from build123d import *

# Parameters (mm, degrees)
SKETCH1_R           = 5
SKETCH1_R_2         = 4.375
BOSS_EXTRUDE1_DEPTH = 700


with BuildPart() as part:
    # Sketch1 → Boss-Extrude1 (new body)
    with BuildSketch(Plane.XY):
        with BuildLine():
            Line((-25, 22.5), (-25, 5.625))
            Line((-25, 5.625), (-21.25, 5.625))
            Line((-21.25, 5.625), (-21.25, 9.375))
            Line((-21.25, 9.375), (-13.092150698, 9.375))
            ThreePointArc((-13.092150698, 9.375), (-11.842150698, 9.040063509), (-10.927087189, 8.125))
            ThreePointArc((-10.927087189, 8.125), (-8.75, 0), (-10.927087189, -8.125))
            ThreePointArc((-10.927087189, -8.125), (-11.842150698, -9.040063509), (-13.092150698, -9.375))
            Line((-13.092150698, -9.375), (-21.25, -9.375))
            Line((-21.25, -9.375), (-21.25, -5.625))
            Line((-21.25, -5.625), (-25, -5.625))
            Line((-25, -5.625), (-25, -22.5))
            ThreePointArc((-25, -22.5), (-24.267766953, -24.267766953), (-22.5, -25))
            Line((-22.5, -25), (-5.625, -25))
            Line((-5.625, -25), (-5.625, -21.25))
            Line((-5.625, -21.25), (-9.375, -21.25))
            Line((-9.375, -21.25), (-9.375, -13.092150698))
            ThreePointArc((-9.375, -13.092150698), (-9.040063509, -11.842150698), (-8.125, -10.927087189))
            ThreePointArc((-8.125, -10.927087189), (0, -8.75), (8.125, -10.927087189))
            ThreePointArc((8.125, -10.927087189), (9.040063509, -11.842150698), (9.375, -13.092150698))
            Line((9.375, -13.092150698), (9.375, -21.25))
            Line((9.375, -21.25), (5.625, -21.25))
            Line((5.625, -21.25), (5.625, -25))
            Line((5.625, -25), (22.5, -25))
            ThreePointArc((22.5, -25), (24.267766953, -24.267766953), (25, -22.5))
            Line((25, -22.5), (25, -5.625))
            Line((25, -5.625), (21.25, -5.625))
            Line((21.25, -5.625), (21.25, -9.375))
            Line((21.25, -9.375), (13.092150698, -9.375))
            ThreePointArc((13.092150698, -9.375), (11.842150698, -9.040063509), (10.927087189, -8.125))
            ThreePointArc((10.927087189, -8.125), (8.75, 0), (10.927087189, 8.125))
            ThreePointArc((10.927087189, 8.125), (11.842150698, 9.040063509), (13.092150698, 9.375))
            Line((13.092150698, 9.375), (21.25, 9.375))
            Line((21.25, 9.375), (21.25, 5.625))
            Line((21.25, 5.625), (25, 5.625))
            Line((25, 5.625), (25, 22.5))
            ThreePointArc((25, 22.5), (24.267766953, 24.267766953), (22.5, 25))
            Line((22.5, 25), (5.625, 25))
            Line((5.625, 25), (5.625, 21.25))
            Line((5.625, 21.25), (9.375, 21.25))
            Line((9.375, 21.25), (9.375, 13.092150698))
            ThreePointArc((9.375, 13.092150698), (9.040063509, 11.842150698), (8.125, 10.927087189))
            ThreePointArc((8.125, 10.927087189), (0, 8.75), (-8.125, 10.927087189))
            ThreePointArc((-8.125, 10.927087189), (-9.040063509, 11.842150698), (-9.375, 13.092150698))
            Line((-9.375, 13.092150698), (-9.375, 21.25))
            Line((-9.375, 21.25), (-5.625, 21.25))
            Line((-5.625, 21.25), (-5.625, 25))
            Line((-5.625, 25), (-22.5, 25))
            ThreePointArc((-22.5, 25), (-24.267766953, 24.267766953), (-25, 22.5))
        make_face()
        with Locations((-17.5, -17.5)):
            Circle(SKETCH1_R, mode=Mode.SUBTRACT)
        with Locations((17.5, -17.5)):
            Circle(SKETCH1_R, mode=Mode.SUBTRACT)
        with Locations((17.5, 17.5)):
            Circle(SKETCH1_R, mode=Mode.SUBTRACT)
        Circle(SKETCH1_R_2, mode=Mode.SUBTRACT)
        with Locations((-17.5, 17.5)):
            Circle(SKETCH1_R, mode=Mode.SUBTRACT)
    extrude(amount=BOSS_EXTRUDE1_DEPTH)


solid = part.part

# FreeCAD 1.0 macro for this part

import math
import FreeCAD as App
import Part
import Sketcher

V = App.Vector
Q = App.Units.Quantity

doc = App.newDocument("Part")
params = doc.addObject("Spreadsheet::Sheet", "Params")
for row, (alias, value) in enumerate([
    ("sketch1_diameter", "10 mm"),
    ("sketch1_radius", "2.5 mm"),
    ("sketch1_diameter2", "8.75 mm"),
    ("sketch1_radius2", "16.25 mm"),
    ("sketch1_width", "3.75 mm"),
    ("pad1_length", "700 mm"),
], start=1):
    params.set(f"A{row}", alias)
    params.set(f"B{row}", "=" + value)
    params.setAlias(f"B{row}", alias)

body = doc.addObject("PartDesign::Body", "Body")

sketch1 = body.newObject("Sketcher::SketchObject", "Sketch")
sketch1.AttachmentSupport = (doc.getObject("XY_Plane"), [""])
sketch1.MapMode = "FlatFace"
sketch1.addGeometry([
    Part.LineSegment(V(-25, 22.5, 0), V(-25, 5.6, 0)),
    Part.LineSegment(V(-25, 5.6, 0), V(-21.2, 5.6, 0)),
    Part.LineSegment(V(-21.2, 5.6, 0), V(-21.2, 9.4, 0)),
    Part.LineSegment(V(-21.2, 9.4, 0), V(-13.1, 9.4, 0)),
    Part.ArcOfCircle(Part.Circle(V(-13.1, 6.9, 0), V(0, 0, 1), 2.5), math.radians(30), math.radians(90)),
    Part.ArcOfCircle(Part.Circle(V(-25, 0, 0), V(0, 0, 1), 16.2), math.radians(-30), math.radians(30)),
    Part.ArcOfCircle(Part.Circle(V(-13.1, -6.9, 0), V(0, 0, 1), 2.5), math.radians(-90), math.radians(-30)),
    Part.LineSegment(V(-13.1, -9.4, 0), V(-21.2, -9.4, 0)),
    Part.LineSegment(V(-21.2, -9.4, 0), V(-21.2, -5.6, 0)),
    Part.LineSegment(V(-21.2, -5.6, 0), V(-25, -5.6, 0)),
    Part.LineSegment(V(-25, -5.6, 0), V(-25, -22.5, 0)),
    Part.ArcOfCircle(Part.Circle(V(-22.5, -22.5, 0), V(0, 0, 1), 2.5), math.radians(180), math.radians(270)),
    Part.LineSegment(V(-22.5, -25, 0), V(-5.6, -25, 0)),
    Part.LineSegment(V(-5.6, -25, 0), V(-5.6, -21.2, 0)),
    Part.LineSegment(V(-5.6, -21.2, 0), V(-9.4, -21.2, 0)),
    Part.LineSegment(V(-9.4, -21.2, 0), V(-9.4, -13.1, 0)),
    Part.ArcOfCircle(Part.Circle(V(-6.9, -13.1, 0), V(0, 0, 1), 2.5), math.radians(120), math.radians(180)),
    Part.ArcOfCircle(Part.Circle(V(0, -25, 0), V(0, 0, 1), 16.2), math.radians(60), math.radians(120)),
    Part.ArcOfCircle(Part.Circle(V(6.9, -13.1, 0), V(0, 0, 1), 2.5), math.radians(0), math.radians(60)),
    Part.LineSegment(V(9.4, -13.1, 0), V(9.4, -21.2, 0)),
    Part.LineSegment(V(9.4, -21.2, 0), V(5.6, -21.2, 0)),
    Part.LineSegment(V(5.6, -21.2, 0), V(5.6, -25, 0)),
    Part.LineSegment(V(5.6, -25, 0), V(22.5, -25, 0)),
    Part.ArcOfCircle(Part.Circle(V(22.5, -22.5, 0), V(0, 0, 1), 2.5), math.radians(-90), math.radians(0)),
    Part.LineSegment(V(25, -22.5, 0), V(25, -5.6, 0)),
    Part.LineSegment(V(25, -5.6, 0), V(21.2, -5.6, 0)),
    Part.LineSegment(V(21.2, -5.6, 0), V(21.2, -9.4, 0)),
    Part.LineSegment(V(21.2, -9.4, 0), V(13.1, -9.4, 0)),
    Part.ArcOfCircle(Part.Circle(V(13.1, -6.9, 0), V(0, 0, 1), 2.5), math.radians(-150), math.radians(-90)),
    Part.ArcOfCircle(Part.Circle(V(25, 0, 0), V(0, 0, 1), 16.2), math.radians(150), math.radians(210)),
    Part.ArcOfCircle(Part.Circle(V(13.1, 6.9, 0), V(0, 0, 1), 2.5), math.radians(90), math.radians(150)),
    Part.LineSegment(V(13.1, 9.4, 0), V(21.2, 9.4, 0)),
    Part.LineSegment(V(21.2, 9.4, 0), V(21.2, 5.6, 0)),
    Part.LineSegment(V(21.2, 5.6, 0), V(25, 5.6, 0)),
    Part.LineSegment(V(25, 5.6, 0), V(25, 22.5, 0)),
    Part.ArcOfCircle(Part.Circle(V(22.5, 22.5, 0), V(0, 0, 1), 2.5), math.radians(0), math.radians(90)),
    Part.LineSegment(V(22.5, 25, 0), V(5.6, 25, 0)),
    Part.LineSegment(V(5.6, 25, 0), V(5.6, 21.2, 0)),
    Part.LineSegment(V(5.6, 21.2, 0), V(9.4, 21.2, 0)),
    Part.LineSegment(V(9.4, 21.2, 0), V(9.4, 13.1, 0)),
    Part.ArcOfCircle(Part.Circle(V(6.9, 13.1, 0), V(0, 0, 1), 2.5), math.radians(-60), math.radians(0)),
    Part.ArcOfCircle(Part.Circle(V(0, 25, 0), V(0, 0, 1), 16.2), math.radians(-120), math.radians(-60)),
    Part.ArcOfCircle(Part.Circle(V(-6.9, 13.1, 0), V(0, 0, 1), 2.5), math.radians(-180), math.radians(-120)),
    Part.LineSegment(V(-9.4, 13.1, 0), V(-9.4, 21.2, 0)),
    Part.LineSegment(V(-9.4, 21.2, 0), V(-5.6, 21.2, 0)),
    Part.LineSegment(V(-5.6, 21.2, 0), V(-5.6, 25, 0)),
    Part.LineSegment(V(-5.6, 25, 0), V(-22.5, 25, 0)),
    Part.ArcOfCircle(Part.Circle(V(-22.5, 22.5, 0), V(0, 0, 1), 2.5), math.radians(90), math.radians(180)),
    Part.Circle(V(-17.5, -17.5, 0), V(0, 0, 1), 5),
    Part.Circle(V(17.5, -17.5, 0), V(0, 0, 1), 5),
    Part.Circle(V(-17.5, 17.5, 0), V(0, 0, 1), 5),
    Part.Circle(V(0, 0, 0), V(0, 0, 1), 4.4),
    Part.Circle(V(17.5, 17.5, 0), V(0, 0, 1), 5),
], False)
sketch1.addConstraint([
    Sketcher.Constraint("Coincident", 0, 2, 1, 1),
    Sketcher.Constraint("Coincident", 1, 2, 2, 1),
    Sketcher.Constraint("Coincident", 2, 2, 3, 1),
    Sketcher.Constraint("Tangent", 3, 2, 4, 2),
    Sketcher.Constraint("Tangent", 4, 1, 5, 2),
    Sketcher.Constraint("Tangent", 5, 1, 6, 2),
    Sketcher.Constraint("Tangent", 6, 1, 7, 1),
    Sketcher.Constraint("Coincident", 7, 2, 8, 1),
    Sketcher.Constraint("Coincident", 8, 2, 9, 1),
    Sketcher.Constraint("Coincident", 9, 2, 10, 1),
    Sketcher.Constraint("Tangent", 10, 2, 11, 1),
    Sketcher.Constraint("Tangent", 11, 2, 12, 1),
    Sketcher.Constraint("Coincident", 12, 2, 13, 1),
    Sketcher.Constraint("Coincident", 13, 2, 14, 1),
    Sketcher.Constraint("Coincident", 14, 2, 15, 1),
    Sketcher.Constraint("Tangent", 15, 2, 16, 2),
    Sketcher.Constraint("Tangent", 16, 1, 17, 2),
    Sketcher.Constraint("Tangent", 17, 1, 18, 2),
    Sketcher.Constraint("Tangent", 18, 1, 19, 1),
    Sketcher.Constraint("Coincident", 19, 2, 20, 1),
    Sketcher.Constraint("Coincident", 20, 2, 21, 1),
    Sketcher.Constraint("Coincident", 21, 2, 22, 1),
    Sketcher.Constraint("Tangent", 22, 2, 23, 1),
    Sketcher.Constraint("Tangent", 23, 2, 24, 1),
    Sketcher.Constraint("Coincident", 24, 2, 25, 1),
    Sketcher.Constraint("Coincident", 25, 2, 26, 1),
    Sketcher.Constraint("Coincident", 26, 2, 27, 1),
    Sketcher.Constraint("Tangent", 27, 2, 28, 2),
    Sketcher.Constraint("Tangent", 28, 1, 29, 2),
    Sketcher.Constraint("Tangent", 29, 1, 30, 2),
    Sketcher.Constraint("Tangent", 30, 1, 31, 1),
    Sketcher.Constraint("Coincident", 31, 2, 32, 1),
    Sketcher.Constraint("Coincident", 32, 2, 33, 1),
    Sketcher.Constraint("Coincident", 33, 2, 34, 1),
    Sketcher.Constraint("Tangent", 34, 2, 35, 1),
    Sketcher.Constraint("Tangent", 35, 2, 36, 1),
    Sketcher.Constraint("Coincident", 36, 2, 37, 1),
    Sketcher.Constraint("Coincident", 37, 2, 38, 1),
    Sketcher.Constraint("Coincident", 38, 2, 39, 1),
    Sketcher.Constraint("Tangent", 39, 2, 40, 2),
    Sketcher.Constraint("Tangent", 40, 1, 41, 2),
    Sketcher.Constraint("Tangent", 41, 1, 42, 2),
    Sketcher.Constraint("Tangent", 42, 1, 43, 1),
    Sketcher.Constraint("Coincident", 43, 2, 44, 1),
    Sketcher.Constraint("Coincident", 44, 2, 45, 1),
    Sketcher.Constraint("Coincident", 45, 2, 46, 1),
    Sketcher.Constraint("Tangent", 46, 2, 47, 1),
    Sketcher.Constraint("Tangent", 47, 2, 0, 1),
    Sketcher.Constraint("Vertical", 0),
    Sketcher.Constraint("Horizontal", 1),
    Sketcher.Constraint("Vertical", 2),
    Sketcher.Constraint("Horizontal", 3),
    Sketcher.Constraint("Horizontal", 7),
    Sketcher.Constraint("Vertical", 8),
    Sketcher.Constraint("Horizontal", 9),
    Sketcher.Constraint("Vertical", 10),
    Sketcher.Constraint("Horizontal", 12),
    Sketcher.Constraint("Vertical", 13),
    Sketcher.Constraint("Horizontal", 14),
    Sketcher.Constraint("Vertical", 15),
    Sketcher.Constraint("Vertical", 19),
    Sketcher.Constraint("Horizontal", 20),
    Sketcher.Constraint("Vertical", 21),
    Sketcher.Constraint("Horizontal", 22),
    Sketcher.Constraint("Vertical", 24),
    Sketcher.Constraint("Horizontal", 25),
    Sketcher.Constraint("Vertical", 26),
    Sketcher.Constraint("Horizontal", 27),
    Sketcher.Constraint("Horizontal", 31),
    Sketcher.Constraint("Vertical", 32),
    Sketcher.Constraint("Horizontal", 33),
    Sketcher.Constraint("Vertical", 34),
    Sketcher.Constraint("Horizontal", 36),
    Sketcher.Constraint("Vertical", 37),
    Sketcher.Constraint("Horizontal", 38),
    Sketcher.Constraint("Vertical", 39),
    Sketcher.Constraint("Vertical", 43),
    Sketcher.Constraint("Horizontal", 44),
    Sketcher.Constraint("Vertical", 45),
    Sketcher.Constraint("Horizontal", 46),
    Sketcher.Constraint("Coincident", 51, 3, -1, 1),
    Sketcher.Constraint("Equal", 4, 6),
    Sketcher.Constraint("Equal", 6, 11),
    Sketcher.Constraint("Equal", 11, 16),
    Sketcher.Constraint("Equal", 5, 17),
    Sketcher.Constraint("Equal", 16, 18),
    Sketcher.Constraint("Equal", 18, 23),
    Sketcher.Constraint("Equal", 23, 28),
    Sketcher.Constraint("Equal", 17, 29),
    Sketcher.Constraint("Equal", 28, 30),
    Sketcher.Constraint("Equal", 30, 35),
    Sketcher.Constraint("Equal", 35, 40),
    Sketcher.Constraint("Equal", 29, 41),
    Sketcher.Constraint("Equal", 40, 42),
    Sketcher.Constraint("Equal", 42, 47),
    Sketcher.Constraint("Equal", 48, 49),
    Sketcher.Constraint("Equal", 49, 50),
    Sketcher.Constraint("Equal", 50, 52),
    Sketcher.Constraint("Symmetric", 4, 3, 28, 3, -1, 1),
    Sketcher.Constraint("Symmetric", 6, 3, 30, 3, -1, 1),
    Sketcher.Constraint("Symmetric", 11, 3, 35, 3, -1, 1),
    Sketcher.Constraint("Symmetric", 16, 3, 40, 3, -1, 1),
    Sketcher.Constraint("Symmetric", 18, 3, 42, 3, -1, 1),
    Sketcher.Constraint("Symmetric", 23, 3, 47, 3, -1, 1),
    Sketcher.Constraint("Symmetric", 49, 3, 50, 3, -1, 1),
    Sketcher.Constraint("Symmetric", 48, 3, 52, 3, -1, 1),
    Sketcher.Constraint("Symmetric", 1, 2, 25, 2, -1, 1),
    Sketcher.Constraint("Symmetric", 8, 2, 32, 2, -1, 1),
    Sketcher.Constraint("Symmetric", 13, 2, 37, 2, -1, 1),
    Sketcher.Constraint("Symmetric", 20, 2, 44, 2, -1, 1),
    Sketcher.Constraint("Symmetric", 16, 3, 18, 3, -2),
    Sketcher.Constraint("Symmetric", 11, 3, 23, 3, -2),
    Sketcher.Constraint("Symmetric", 6, 3, 28, 3, -2),
    Sketcher.Constraint("Symmetric", 48, 3, 49, 3, -2),
    Sketcher.Constraint("Symmetric", 13, 2, 20, 2, -2),
    Sketcher.Constraint("Symmetric", 8, 2, 25, 2, -2),
    Sketcher.Constraint("Horizontal", 17, 3, 11, 2),
    Sketcher.Constraint("Vertical", 5, 3, 0, 2),
    Sketcher.Constraint("Equal", 9, 14),
    Sketcher.Constraint("Equal", 46, 0),
    Sketcher.Constraint("Equal", 44, 2),
    Sketcher.Constraint("Equal", 8, 13),
    Sketcher.Constraint("Equal", 31, 15),
    Sketcher.Constraint("Diameter", 48, Q("10 mm")),
    Sketcher.Constraint("Radius", 4, Q("2.5 mm")),
    Sketcher.Constraint("Diameter", 51, Q("8.75 mm")),
    Sketcher.Constraint("Radius", 5, Q("16.25 mm")),
    Sketcher.Constraint("DistanceX", 5, 3, -1, 1, Q("25 mm")),
    Sketcher.Constraint("DistanceX", 1, 1, 1, 2, Q("3.75 mm")),
    Sketcher.Constraint("DistanceX", 48, 3, -1, 1, Q("17.5 mm")),
    Sketcher.Constraint("DistanceY", 48, 3, -1, 1, Q("17.5 mm")),
    Sketcher.Constraint("DistanceX", 12, 1, 12, 2, Q("16.875 mm")),
])
sketch1.setExpression("Constraints[123]", "Params.sketch1_diameter")
sketch1.setExpression("Constraints[124]", "Params.sketch1_radius")
sketch1.setExpression("Constraints[125]", "Params.sketch1_diameter2")
sketch1.setExpression("Constraints[126]", "Params.sketch1_radius2")
sketch1.setExpression("Constraints[128]", "Params.sketch1_width")
pad1 = body.newObject("PartDesign::Pad", "Pad")
pad1.Profile = sketch1
pad1.setExpression("Length", "Params.pad1_length")

doc.recompute()
